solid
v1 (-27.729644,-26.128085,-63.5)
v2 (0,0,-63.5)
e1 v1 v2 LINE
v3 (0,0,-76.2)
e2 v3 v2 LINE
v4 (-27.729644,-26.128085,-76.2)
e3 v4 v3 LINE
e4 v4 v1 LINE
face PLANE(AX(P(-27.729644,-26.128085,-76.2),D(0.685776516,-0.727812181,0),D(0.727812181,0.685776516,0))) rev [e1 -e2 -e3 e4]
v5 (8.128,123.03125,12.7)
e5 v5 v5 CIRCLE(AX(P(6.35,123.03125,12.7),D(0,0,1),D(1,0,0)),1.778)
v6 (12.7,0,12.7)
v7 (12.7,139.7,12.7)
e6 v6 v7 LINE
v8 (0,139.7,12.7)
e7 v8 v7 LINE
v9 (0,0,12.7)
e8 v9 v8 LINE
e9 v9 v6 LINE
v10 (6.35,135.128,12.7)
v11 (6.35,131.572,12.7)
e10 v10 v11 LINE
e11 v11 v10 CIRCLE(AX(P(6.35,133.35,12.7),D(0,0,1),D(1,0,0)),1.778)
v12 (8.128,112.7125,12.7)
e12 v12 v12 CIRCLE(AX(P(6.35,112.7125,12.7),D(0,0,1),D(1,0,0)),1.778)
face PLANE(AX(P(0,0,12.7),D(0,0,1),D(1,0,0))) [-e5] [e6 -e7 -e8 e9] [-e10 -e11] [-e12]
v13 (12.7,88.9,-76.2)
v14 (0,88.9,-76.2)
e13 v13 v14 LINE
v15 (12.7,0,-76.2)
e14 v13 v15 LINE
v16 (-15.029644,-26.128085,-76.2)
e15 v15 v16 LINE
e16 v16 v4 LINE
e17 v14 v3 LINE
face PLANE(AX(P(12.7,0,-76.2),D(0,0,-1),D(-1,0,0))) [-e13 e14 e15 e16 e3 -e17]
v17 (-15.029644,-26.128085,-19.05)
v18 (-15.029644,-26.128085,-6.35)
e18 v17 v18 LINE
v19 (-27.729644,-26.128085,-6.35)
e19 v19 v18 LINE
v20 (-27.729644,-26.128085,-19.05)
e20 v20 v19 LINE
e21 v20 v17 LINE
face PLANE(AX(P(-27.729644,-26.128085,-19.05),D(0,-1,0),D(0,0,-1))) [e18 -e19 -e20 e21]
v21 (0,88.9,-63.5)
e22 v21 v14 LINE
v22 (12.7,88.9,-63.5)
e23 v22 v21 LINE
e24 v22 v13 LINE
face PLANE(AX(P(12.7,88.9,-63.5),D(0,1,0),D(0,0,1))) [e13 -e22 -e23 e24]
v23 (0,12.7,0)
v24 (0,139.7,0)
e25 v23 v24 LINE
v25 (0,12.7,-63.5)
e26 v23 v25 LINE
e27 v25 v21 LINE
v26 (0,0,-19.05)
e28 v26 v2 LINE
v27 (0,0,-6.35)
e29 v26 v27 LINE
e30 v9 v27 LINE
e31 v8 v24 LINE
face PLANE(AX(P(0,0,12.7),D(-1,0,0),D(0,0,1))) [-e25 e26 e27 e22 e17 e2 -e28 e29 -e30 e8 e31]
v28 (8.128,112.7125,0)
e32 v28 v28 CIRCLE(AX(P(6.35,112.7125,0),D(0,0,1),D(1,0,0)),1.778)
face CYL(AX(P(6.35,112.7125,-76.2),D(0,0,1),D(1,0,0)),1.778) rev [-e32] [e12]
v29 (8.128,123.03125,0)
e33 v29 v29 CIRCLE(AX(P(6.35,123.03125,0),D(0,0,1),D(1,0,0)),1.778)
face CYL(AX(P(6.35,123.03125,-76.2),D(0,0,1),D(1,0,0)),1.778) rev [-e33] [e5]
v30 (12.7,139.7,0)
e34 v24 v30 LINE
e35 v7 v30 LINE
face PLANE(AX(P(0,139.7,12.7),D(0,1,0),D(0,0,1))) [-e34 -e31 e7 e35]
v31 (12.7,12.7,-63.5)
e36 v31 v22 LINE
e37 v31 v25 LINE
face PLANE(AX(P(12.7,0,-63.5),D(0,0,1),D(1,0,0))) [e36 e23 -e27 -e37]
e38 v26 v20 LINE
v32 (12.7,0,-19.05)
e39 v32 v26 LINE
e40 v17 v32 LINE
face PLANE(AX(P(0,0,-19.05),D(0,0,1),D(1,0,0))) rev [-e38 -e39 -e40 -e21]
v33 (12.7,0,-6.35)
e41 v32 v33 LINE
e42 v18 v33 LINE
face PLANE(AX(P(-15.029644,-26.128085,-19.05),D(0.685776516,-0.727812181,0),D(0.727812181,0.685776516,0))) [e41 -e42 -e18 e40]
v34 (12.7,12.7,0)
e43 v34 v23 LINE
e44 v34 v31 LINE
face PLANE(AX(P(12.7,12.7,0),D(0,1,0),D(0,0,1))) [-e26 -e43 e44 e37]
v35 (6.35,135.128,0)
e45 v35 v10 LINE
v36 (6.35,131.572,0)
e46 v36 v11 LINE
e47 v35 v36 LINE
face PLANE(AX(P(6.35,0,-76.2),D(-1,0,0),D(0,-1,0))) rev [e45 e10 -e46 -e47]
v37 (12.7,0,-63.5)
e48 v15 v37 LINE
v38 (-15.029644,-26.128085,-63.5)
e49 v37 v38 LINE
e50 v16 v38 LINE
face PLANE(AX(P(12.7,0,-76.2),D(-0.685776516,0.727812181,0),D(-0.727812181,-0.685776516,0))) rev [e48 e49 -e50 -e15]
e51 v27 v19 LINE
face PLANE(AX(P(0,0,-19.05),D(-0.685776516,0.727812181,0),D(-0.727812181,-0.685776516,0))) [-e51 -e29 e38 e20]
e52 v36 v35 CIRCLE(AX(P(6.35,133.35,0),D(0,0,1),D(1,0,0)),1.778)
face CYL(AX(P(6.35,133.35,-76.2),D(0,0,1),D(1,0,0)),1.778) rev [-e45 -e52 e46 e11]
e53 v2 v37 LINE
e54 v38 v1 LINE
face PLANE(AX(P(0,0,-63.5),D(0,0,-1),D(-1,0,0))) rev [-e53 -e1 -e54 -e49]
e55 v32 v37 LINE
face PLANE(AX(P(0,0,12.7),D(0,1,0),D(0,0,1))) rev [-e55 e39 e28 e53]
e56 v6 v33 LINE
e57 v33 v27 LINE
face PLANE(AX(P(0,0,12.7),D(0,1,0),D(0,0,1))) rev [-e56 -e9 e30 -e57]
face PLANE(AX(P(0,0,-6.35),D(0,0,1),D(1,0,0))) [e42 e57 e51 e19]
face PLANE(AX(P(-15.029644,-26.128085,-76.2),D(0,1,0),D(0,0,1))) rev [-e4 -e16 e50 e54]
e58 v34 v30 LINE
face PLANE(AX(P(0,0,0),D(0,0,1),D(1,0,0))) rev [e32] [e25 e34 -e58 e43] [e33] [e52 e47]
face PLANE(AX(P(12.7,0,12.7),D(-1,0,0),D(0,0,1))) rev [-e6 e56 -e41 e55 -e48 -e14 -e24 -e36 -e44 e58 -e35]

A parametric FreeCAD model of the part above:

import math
import FreeCAD as App
import Part
import Sketcher

V = App.Vector
Q = App.Units.Quantity

doc = App.newDocument("Part")
body = doc.addObject("PartDesign::Body", "Body")

# Sketch on XY plane
sketch1 = body.newObject("Sketcher::SketchObject", "Sketch")
sketch1.AttachmentSupport = (doc.getObject("XY_Plane"), [""])
sketch1.MapMode = "FlatFace"
sketch1.addGeometry([
    Part.LineSegment(V(0, 139.7, 0), V(0, 0, 0)),
    Part.LineSegment(V(0, 0, 0), V(12.7, 0, 0)),
    Part.LineSegment(V(12.7, 0, 0), V(12.7, 139.7, 0)),
    Part.LineSegment(V(12.7, 139.7, 0), V(0, 139.7, 0)),
], False)
sketch1.addConstraint([
    Sketcher.Constraint("Coincident", 0, 2, 1, 1),
    Sketcher.Constraint("Coincident", 1, 2, 2, 1),
    Sketcher.Constraint("Coincident", 2, 2, 3, 1),
    Sketcher.Constraint("Coincident", 3, 2, 0, 1),
    Sketcher.Constraint("Vertical", 0),
    Sketcher.Constraint("Horizontal", 1),
    Sketcher.Constraint("Vertical", 2),
    Sketcher.Constraint("Horizontal", 3),
    Sketcher.Constraint("Coincident", 0, 2, -1, 1),
    Sketcher.Constraint("DistanceX", 1, 1, 1, 2, Q("0.5 in")),
    Sketcher.Constraint("DistanceY", 0, 2, 0, 1, Q("5.5 in")),
])
pad1 = body.newObject("PartDesign::Pad", "Pad")
pad1.Profile = sketch1
pad1.Length = Q("0.5 in")

# Sketch on YZ plane
sketch2 = body.newObject("Sketcher::SketchObject", "Sketch001")
sketch2.AttachmentSupport = (doc.getObject("YZ_Plane"), [""])
sketch2.MapMode = "FlatFace"
sketch2.addGeometry([
    Part.LineSegment(V(12.7, -63.5, 0), V(0, -63.5, 0)),
    Part.LineSegment(V(0, -63.5, 0), V(0, 0, 0)),
    Part.LineSegment(V(0, 0, 0), V(12.7, 0, 0)),
    Part.LineSegment(V(12.7, 0, 0), V(12.7, -63.5, 0)),
], False)
sketch2.addConstraint([
    Sketcher.Constraint("Coincident", 0, 2, 1, 1),
    Sketcher.Constraint("Coincident", 1, 2, 2, 1),
    Sketcher.Constraint("Coincident", 2, 2, 3, 1),
    Sketcher.Constraint("Coincident", 3, 2, 0, 1),
    Sketcher.Constraint("Horizontal", 0),
    Sketcher.Constraint("Vertical", 1),
    Sketcher.Constraint("Horizontal", 2),
    Sketcher.Constraint("Vertical", 3),
    Sketcher.Constraint("Coincident", 1, 2, -1, 1),
    Sketcher.Constraint("DistanceX", 0, 2, 0, 1, Q("0.5 in")),
    Sketcher.Constraint("DistanceY", 1, 1, 1, 2, Q("2.5 in")),
])
pad2 = body.newObject("PartDesign::Pad", "Pad001")
pad2.Profile = sketch2
pad2.Length = Q("0.5 in")

# Sketch on YZ plane
sketch3 = body.newObject("Sketcher::SketchObject", "Sketch002")
sketch3.AttachmentSupport = (doc.getObject("YZ_Plane"), [""])
sketch3.MapMode = "FlatFace"
sketch3.addGeometry([
    Part.LineSegment(V(88.9, -76.2, 0), V(0, -76.2, 0)),
    Part.LineSegment(V(0, -76.2, 0), V(0, -63.5, 0)),
    Part.LineSegment(V(0, -63.5, 0), V(88.9, -63.5, 0)),
    Part.LineSegment(V(88.9, -63.5, 0), V(88.9, -76.2, 0)),
], False)
sketch3.addConstraint([
    Sketcher.Constraint("Coincident", 0, 2, 1, 1),
    Sketcher.Constraint("Coincident", 1, 2, 2, 1),
    Sketcher.Constraint("Coincident", 2, 2, 3, 1),
    Sketcher.Constraint("Coincident", 3, 2, 0, 1),
    Sketcher.Constraint("Horizontal", 0),
    Sketcher.Constraint("Vertical", 1),
    Sketcher.Constraint("Horizontal", 2),
    Sketcher.Constraint("Vertical", 3),
    Sketcher.Constraint("PointOnObject", 0, 2, -2),
    Sketcher.Constraint("DistanceX", 0, 2, 0, 1, Q("3.5 in")),
    Sketcher.Constraint("DistanceY", 1, 1, 1, 2, Q("0.5 in")),
    Sketcher.Constraint("DistanceY", 0, 2, -1, 1, Q("3 in")),
])
pad3 = body.newObject("PartDesign::Pad", "Pad002")
pad3.Profile = sketch3
pad3.Length = Q("0.5 in")

# Sketch on XY plane
sketch4 = body.newObject("Sketcher::SketchObject", "Sketch003")
sketch4.AttachmentSupport = (doc.getObject("XY_Plane"), [""])
sketch4.MapMode = "FlatFace"
sketch4.AttachmentOffset = App.Placement(V(0, 0, 0.5 * 25.4), App.Rotation())
sketch4.addGeometry([
    Part.ArcOfCircle(Part.Circle(V(6.35, 133.35, 0), V(0, 0, 1), 1.778), math.radians(-90), math.radians(90)),
    Part.LineSegment(V(6.35, 135.128, 0), V(6.35, 131.572, 0)),
    Part.Circle(V(6.35, 112.7125, 0), V(0, 0, 1), 1.778),
    Part.Circle(V(6.35, 123.03125, 0), V(0, 0, 1), 1.778),
], False)
sketch4.addConstraint([
    Sketcher.Constraint("Coincident", 0, 1, 1, 2),
    Sketcher.Constraint("Coincident", 1, 1, 0, 2),
    Sketcher.Constraint("Vertical", 1),
    Sketcher.Constraint("Equal", 0, 2),
    Sketcher.Constraint("Equal", 2, 3),
    Sketcher.Constraint("Vertical", 0, 3, 2, 3),
    Sketcher.Constraint("Vertical", 2, 3, 3, 3),
    Sketcher.Constraint("Vertical", 3, 3, 0, 1),
    Sketcher.Constraint("Diameter", 2, Q("0.14 in")),
    Sketcher.Constraint("DistanceX", -1, 1, 0, 3, Q("0.25 in")),
    Sketcher.Constraint("DistanceY", -1, 1, 0, 3, Q("5.25 in")),
    Sketcher.Constraint("DistanceY", -1, 1, 2, 3, Q("4.4375 in")),
    Sketcher.Constraint("DistanceY", -1, 1, 3, 3, Q("4.84375 in")),
])
pocket1 = body.newObject("PartDesign::Pocket", "Pocket")
pocket1.Profile = sketch4
pocket1.Type = "ThroughAll"

# Sketch on XY plane
sketch5 = body.newObject("Sketcher::SketchObject", "Sketch004")
sketch5.AttachmentSupport = (doc.getObject("XY_Plane"), [""])
sketch5.MapMode = "FlatFace"
sketch5.AttachmentOffset = App.Placement(V(0, 0, -0.25 * 25.4), App.Rotation())
sketch5.addGeometry([
    Part.LineSegment(V(0, 0, 0), V(-27.729644, -26.128085, 0)),
    Part.LineSegment(V(-27.729644, -26.128085, 0), V(-15.029644, -26.128085, 0)),
    Part.LineSegment(V(-15.029644, -26.128085, 0), V(12.7, 0, 0)),
    Part.LineSegment(V(12.7, 0, 0), V(0, 0, 0)),
], False)
sketch5.addConstraint([
    Sketcher.Constraint("Coincident", 0, 2, 1, 1),
    Sketcher.Constraint("Coincident", 1, 2, 2, 1),
    Sketcher.Constraint("Coincident", 2, 2, 3, 1),
    Sketcher.Constraint("Coincident", 3, 2, 0, 1),
    Sketcher.Constraint("Horizontal", 1),
    Sketcher.Constraint("Horizontal", 3),
    Sketcher.Constraint("Coincident", 3, 2, -1, 1),
    Sketcher.Constraint("Parallel", 0, 2),
    Sketcher.Constraint("DistanceX", 1, 1, 1, 2, Q("0.5 in")),
    Sketcher.Constraint("Distance", 0, Q("1.5 in")),
    Sketcher.Constraint("DistanceX", 0, 2, -1, 1, 27.729644),
])
pad4 = body.newObject("PartDesign::Pad", "Pad003")
pad4.Profile = sketch5
pad4.Length = Q("0.5 in")
pad4.Reversed = True

# Sketch on XY plane
sketch6 = body.newObject("Sketcher::SketchObject", "Sketch005")
sketch6.AttachmentSupport = (doc.getObject("XY_Plane"), [""])
sketch6.MapMode = "FlatFace"
sketch6.AttachmentOffset = App.Placement(V(0, 0, -2.5 * 25.4), App.Rotation())
sketch6.addGeometry([
    Part.LineSegment(V(12.7, 0, 0), V(-15.029644, -26.128085, 0)),
    Part.LineSegment(V(-15.029644, -26.128085, 0), V(-27.729644, -26.128085, 0)),
    Part.LineSegment(V(-27.729644, -26.128085, 0), V(0, 0, 0)),
    Part.LineSegment(V(0, 0, 0), V(12.7, 0, 0)),
], False)
sketch6.addConstraint([
    Sketcher.Constraint("Coincident", 0, 2, 1, 1),
    Sketcher.Constraint("Coincident", 1, 2, 2, 1),
    Sketcher.Constraint("Coincident", 2, 2, 3, 1),
    Sketcher.Constraint("Coincident", 3, 2, 0, 1),
    Sketcher.Constraint("Horizontal", 1),
    Sketcher.Constraint("Horizontal", 3),
    Sketcher.Constraint("Coincident", 2, 2, -1, 1),
    Sketcher.Constraint("Parallel", 0, 2),
    Sketcher.Constraint("DistanceX", 1, 2, 1, 1, Q("0.5 in")),
    Sketcher.Constraint("Distance", 0, Q("1.5 in")),
    Sketcher.Constraint("DistanceX", 0, 2, -1, 1, 15.029644),
])
pad5 = body.newObject("PartDesign::Pad", "Pad004")
pad5.Profile = sketch6
pad5.Length = Q("0.5 in")
pad5.Reversed = True

doc.recompute()
